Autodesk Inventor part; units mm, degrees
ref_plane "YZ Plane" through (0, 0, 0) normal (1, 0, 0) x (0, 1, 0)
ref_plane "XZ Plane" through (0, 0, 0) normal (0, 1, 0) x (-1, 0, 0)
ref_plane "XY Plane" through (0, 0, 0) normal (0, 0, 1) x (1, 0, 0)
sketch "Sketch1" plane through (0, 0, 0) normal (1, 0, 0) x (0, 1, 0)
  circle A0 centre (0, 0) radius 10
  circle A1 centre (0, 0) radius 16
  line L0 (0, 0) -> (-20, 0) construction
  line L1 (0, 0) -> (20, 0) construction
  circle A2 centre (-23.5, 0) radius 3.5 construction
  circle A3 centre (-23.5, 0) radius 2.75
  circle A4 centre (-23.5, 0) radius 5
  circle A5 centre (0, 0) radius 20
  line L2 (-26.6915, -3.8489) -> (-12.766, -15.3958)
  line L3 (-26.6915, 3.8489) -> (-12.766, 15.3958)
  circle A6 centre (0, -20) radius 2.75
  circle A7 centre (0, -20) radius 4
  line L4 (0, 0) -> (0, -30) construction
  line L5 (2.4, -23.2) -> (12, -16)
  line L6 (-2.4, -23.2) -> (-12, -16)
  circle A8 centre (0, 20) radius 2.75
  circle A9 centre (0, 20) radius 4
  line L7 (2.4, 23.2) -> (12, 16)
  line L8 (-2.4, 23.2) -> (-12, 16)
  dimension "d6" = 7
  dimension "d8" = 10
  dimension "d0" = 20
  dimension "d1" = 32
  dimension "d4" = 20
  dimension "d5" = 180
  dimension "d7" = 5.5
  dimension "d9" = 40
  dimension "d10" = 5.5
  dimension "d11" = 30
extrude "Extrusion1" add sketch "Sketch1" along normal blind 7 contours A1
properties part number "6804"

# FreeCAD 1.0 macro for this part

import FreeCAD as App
import Part
import Sketcher

V = App.Vector
Q = App.Units.Quantity

doc = App.newDocument("Part")
params = doc.addObject("Spreadsheet::Sheet", "Params")
for row, (alias, value) in enumerate([
    ("sketch1_diameter", "32 mm"),
    ("sketch1_diameter2", "20 mm"),
    ("pad1_length", "7 mm"),
], start=1):
    params.set(f"A{row}", alias)
    params.set(f"B{row}", "=" + value)
    params.setAlias(f"B{row}", alias)

body = doc.addObject("PartDesign::Body", "Body")

# Sketch on YZ plane
sketch1 = body.newObject("Sketcher::SketchObject", "Sketch")
sketch1.AttachmentSupport = (doc.getObject("YZ_Plane"), [""])
sketch1.MapMode = "FlatFace"
sketch1.addGeometry(Part.Circle(V(0, 0, 0), V(0, 0, 1), 16), False)
sketch1.addGeometry(Part.Circle(V(0, 0, 0), V(0, 0, 1), 10), False)
sketch1.addConstraint(Sketcher.Constraint("Coincident", 0, 3, -1, 1))
sketch1.addConstraint(Sketcher.Constraint("Coincident", 1, 3, -1, 1))
sketch1.addConstraint(Sketcher.Constraint("Diameter", 0, Q("32 mm")))
sketch1.addConstraint(Sketcher.Constraint("Diameter", 1, Q("20 mm")))
sketch1.setExpression("Constraints[2]", "Params.sketch1_diameter")
sketch1.setExpression("Constraints[3]", "Params.sketch1_diameter2")
pad1 = body.newObject("PartDesign::Pad", "Pad")
pad1.Profile = sketch1
pad1.setExpression("Length", "Params.pad1_length")

doc.recompute()
